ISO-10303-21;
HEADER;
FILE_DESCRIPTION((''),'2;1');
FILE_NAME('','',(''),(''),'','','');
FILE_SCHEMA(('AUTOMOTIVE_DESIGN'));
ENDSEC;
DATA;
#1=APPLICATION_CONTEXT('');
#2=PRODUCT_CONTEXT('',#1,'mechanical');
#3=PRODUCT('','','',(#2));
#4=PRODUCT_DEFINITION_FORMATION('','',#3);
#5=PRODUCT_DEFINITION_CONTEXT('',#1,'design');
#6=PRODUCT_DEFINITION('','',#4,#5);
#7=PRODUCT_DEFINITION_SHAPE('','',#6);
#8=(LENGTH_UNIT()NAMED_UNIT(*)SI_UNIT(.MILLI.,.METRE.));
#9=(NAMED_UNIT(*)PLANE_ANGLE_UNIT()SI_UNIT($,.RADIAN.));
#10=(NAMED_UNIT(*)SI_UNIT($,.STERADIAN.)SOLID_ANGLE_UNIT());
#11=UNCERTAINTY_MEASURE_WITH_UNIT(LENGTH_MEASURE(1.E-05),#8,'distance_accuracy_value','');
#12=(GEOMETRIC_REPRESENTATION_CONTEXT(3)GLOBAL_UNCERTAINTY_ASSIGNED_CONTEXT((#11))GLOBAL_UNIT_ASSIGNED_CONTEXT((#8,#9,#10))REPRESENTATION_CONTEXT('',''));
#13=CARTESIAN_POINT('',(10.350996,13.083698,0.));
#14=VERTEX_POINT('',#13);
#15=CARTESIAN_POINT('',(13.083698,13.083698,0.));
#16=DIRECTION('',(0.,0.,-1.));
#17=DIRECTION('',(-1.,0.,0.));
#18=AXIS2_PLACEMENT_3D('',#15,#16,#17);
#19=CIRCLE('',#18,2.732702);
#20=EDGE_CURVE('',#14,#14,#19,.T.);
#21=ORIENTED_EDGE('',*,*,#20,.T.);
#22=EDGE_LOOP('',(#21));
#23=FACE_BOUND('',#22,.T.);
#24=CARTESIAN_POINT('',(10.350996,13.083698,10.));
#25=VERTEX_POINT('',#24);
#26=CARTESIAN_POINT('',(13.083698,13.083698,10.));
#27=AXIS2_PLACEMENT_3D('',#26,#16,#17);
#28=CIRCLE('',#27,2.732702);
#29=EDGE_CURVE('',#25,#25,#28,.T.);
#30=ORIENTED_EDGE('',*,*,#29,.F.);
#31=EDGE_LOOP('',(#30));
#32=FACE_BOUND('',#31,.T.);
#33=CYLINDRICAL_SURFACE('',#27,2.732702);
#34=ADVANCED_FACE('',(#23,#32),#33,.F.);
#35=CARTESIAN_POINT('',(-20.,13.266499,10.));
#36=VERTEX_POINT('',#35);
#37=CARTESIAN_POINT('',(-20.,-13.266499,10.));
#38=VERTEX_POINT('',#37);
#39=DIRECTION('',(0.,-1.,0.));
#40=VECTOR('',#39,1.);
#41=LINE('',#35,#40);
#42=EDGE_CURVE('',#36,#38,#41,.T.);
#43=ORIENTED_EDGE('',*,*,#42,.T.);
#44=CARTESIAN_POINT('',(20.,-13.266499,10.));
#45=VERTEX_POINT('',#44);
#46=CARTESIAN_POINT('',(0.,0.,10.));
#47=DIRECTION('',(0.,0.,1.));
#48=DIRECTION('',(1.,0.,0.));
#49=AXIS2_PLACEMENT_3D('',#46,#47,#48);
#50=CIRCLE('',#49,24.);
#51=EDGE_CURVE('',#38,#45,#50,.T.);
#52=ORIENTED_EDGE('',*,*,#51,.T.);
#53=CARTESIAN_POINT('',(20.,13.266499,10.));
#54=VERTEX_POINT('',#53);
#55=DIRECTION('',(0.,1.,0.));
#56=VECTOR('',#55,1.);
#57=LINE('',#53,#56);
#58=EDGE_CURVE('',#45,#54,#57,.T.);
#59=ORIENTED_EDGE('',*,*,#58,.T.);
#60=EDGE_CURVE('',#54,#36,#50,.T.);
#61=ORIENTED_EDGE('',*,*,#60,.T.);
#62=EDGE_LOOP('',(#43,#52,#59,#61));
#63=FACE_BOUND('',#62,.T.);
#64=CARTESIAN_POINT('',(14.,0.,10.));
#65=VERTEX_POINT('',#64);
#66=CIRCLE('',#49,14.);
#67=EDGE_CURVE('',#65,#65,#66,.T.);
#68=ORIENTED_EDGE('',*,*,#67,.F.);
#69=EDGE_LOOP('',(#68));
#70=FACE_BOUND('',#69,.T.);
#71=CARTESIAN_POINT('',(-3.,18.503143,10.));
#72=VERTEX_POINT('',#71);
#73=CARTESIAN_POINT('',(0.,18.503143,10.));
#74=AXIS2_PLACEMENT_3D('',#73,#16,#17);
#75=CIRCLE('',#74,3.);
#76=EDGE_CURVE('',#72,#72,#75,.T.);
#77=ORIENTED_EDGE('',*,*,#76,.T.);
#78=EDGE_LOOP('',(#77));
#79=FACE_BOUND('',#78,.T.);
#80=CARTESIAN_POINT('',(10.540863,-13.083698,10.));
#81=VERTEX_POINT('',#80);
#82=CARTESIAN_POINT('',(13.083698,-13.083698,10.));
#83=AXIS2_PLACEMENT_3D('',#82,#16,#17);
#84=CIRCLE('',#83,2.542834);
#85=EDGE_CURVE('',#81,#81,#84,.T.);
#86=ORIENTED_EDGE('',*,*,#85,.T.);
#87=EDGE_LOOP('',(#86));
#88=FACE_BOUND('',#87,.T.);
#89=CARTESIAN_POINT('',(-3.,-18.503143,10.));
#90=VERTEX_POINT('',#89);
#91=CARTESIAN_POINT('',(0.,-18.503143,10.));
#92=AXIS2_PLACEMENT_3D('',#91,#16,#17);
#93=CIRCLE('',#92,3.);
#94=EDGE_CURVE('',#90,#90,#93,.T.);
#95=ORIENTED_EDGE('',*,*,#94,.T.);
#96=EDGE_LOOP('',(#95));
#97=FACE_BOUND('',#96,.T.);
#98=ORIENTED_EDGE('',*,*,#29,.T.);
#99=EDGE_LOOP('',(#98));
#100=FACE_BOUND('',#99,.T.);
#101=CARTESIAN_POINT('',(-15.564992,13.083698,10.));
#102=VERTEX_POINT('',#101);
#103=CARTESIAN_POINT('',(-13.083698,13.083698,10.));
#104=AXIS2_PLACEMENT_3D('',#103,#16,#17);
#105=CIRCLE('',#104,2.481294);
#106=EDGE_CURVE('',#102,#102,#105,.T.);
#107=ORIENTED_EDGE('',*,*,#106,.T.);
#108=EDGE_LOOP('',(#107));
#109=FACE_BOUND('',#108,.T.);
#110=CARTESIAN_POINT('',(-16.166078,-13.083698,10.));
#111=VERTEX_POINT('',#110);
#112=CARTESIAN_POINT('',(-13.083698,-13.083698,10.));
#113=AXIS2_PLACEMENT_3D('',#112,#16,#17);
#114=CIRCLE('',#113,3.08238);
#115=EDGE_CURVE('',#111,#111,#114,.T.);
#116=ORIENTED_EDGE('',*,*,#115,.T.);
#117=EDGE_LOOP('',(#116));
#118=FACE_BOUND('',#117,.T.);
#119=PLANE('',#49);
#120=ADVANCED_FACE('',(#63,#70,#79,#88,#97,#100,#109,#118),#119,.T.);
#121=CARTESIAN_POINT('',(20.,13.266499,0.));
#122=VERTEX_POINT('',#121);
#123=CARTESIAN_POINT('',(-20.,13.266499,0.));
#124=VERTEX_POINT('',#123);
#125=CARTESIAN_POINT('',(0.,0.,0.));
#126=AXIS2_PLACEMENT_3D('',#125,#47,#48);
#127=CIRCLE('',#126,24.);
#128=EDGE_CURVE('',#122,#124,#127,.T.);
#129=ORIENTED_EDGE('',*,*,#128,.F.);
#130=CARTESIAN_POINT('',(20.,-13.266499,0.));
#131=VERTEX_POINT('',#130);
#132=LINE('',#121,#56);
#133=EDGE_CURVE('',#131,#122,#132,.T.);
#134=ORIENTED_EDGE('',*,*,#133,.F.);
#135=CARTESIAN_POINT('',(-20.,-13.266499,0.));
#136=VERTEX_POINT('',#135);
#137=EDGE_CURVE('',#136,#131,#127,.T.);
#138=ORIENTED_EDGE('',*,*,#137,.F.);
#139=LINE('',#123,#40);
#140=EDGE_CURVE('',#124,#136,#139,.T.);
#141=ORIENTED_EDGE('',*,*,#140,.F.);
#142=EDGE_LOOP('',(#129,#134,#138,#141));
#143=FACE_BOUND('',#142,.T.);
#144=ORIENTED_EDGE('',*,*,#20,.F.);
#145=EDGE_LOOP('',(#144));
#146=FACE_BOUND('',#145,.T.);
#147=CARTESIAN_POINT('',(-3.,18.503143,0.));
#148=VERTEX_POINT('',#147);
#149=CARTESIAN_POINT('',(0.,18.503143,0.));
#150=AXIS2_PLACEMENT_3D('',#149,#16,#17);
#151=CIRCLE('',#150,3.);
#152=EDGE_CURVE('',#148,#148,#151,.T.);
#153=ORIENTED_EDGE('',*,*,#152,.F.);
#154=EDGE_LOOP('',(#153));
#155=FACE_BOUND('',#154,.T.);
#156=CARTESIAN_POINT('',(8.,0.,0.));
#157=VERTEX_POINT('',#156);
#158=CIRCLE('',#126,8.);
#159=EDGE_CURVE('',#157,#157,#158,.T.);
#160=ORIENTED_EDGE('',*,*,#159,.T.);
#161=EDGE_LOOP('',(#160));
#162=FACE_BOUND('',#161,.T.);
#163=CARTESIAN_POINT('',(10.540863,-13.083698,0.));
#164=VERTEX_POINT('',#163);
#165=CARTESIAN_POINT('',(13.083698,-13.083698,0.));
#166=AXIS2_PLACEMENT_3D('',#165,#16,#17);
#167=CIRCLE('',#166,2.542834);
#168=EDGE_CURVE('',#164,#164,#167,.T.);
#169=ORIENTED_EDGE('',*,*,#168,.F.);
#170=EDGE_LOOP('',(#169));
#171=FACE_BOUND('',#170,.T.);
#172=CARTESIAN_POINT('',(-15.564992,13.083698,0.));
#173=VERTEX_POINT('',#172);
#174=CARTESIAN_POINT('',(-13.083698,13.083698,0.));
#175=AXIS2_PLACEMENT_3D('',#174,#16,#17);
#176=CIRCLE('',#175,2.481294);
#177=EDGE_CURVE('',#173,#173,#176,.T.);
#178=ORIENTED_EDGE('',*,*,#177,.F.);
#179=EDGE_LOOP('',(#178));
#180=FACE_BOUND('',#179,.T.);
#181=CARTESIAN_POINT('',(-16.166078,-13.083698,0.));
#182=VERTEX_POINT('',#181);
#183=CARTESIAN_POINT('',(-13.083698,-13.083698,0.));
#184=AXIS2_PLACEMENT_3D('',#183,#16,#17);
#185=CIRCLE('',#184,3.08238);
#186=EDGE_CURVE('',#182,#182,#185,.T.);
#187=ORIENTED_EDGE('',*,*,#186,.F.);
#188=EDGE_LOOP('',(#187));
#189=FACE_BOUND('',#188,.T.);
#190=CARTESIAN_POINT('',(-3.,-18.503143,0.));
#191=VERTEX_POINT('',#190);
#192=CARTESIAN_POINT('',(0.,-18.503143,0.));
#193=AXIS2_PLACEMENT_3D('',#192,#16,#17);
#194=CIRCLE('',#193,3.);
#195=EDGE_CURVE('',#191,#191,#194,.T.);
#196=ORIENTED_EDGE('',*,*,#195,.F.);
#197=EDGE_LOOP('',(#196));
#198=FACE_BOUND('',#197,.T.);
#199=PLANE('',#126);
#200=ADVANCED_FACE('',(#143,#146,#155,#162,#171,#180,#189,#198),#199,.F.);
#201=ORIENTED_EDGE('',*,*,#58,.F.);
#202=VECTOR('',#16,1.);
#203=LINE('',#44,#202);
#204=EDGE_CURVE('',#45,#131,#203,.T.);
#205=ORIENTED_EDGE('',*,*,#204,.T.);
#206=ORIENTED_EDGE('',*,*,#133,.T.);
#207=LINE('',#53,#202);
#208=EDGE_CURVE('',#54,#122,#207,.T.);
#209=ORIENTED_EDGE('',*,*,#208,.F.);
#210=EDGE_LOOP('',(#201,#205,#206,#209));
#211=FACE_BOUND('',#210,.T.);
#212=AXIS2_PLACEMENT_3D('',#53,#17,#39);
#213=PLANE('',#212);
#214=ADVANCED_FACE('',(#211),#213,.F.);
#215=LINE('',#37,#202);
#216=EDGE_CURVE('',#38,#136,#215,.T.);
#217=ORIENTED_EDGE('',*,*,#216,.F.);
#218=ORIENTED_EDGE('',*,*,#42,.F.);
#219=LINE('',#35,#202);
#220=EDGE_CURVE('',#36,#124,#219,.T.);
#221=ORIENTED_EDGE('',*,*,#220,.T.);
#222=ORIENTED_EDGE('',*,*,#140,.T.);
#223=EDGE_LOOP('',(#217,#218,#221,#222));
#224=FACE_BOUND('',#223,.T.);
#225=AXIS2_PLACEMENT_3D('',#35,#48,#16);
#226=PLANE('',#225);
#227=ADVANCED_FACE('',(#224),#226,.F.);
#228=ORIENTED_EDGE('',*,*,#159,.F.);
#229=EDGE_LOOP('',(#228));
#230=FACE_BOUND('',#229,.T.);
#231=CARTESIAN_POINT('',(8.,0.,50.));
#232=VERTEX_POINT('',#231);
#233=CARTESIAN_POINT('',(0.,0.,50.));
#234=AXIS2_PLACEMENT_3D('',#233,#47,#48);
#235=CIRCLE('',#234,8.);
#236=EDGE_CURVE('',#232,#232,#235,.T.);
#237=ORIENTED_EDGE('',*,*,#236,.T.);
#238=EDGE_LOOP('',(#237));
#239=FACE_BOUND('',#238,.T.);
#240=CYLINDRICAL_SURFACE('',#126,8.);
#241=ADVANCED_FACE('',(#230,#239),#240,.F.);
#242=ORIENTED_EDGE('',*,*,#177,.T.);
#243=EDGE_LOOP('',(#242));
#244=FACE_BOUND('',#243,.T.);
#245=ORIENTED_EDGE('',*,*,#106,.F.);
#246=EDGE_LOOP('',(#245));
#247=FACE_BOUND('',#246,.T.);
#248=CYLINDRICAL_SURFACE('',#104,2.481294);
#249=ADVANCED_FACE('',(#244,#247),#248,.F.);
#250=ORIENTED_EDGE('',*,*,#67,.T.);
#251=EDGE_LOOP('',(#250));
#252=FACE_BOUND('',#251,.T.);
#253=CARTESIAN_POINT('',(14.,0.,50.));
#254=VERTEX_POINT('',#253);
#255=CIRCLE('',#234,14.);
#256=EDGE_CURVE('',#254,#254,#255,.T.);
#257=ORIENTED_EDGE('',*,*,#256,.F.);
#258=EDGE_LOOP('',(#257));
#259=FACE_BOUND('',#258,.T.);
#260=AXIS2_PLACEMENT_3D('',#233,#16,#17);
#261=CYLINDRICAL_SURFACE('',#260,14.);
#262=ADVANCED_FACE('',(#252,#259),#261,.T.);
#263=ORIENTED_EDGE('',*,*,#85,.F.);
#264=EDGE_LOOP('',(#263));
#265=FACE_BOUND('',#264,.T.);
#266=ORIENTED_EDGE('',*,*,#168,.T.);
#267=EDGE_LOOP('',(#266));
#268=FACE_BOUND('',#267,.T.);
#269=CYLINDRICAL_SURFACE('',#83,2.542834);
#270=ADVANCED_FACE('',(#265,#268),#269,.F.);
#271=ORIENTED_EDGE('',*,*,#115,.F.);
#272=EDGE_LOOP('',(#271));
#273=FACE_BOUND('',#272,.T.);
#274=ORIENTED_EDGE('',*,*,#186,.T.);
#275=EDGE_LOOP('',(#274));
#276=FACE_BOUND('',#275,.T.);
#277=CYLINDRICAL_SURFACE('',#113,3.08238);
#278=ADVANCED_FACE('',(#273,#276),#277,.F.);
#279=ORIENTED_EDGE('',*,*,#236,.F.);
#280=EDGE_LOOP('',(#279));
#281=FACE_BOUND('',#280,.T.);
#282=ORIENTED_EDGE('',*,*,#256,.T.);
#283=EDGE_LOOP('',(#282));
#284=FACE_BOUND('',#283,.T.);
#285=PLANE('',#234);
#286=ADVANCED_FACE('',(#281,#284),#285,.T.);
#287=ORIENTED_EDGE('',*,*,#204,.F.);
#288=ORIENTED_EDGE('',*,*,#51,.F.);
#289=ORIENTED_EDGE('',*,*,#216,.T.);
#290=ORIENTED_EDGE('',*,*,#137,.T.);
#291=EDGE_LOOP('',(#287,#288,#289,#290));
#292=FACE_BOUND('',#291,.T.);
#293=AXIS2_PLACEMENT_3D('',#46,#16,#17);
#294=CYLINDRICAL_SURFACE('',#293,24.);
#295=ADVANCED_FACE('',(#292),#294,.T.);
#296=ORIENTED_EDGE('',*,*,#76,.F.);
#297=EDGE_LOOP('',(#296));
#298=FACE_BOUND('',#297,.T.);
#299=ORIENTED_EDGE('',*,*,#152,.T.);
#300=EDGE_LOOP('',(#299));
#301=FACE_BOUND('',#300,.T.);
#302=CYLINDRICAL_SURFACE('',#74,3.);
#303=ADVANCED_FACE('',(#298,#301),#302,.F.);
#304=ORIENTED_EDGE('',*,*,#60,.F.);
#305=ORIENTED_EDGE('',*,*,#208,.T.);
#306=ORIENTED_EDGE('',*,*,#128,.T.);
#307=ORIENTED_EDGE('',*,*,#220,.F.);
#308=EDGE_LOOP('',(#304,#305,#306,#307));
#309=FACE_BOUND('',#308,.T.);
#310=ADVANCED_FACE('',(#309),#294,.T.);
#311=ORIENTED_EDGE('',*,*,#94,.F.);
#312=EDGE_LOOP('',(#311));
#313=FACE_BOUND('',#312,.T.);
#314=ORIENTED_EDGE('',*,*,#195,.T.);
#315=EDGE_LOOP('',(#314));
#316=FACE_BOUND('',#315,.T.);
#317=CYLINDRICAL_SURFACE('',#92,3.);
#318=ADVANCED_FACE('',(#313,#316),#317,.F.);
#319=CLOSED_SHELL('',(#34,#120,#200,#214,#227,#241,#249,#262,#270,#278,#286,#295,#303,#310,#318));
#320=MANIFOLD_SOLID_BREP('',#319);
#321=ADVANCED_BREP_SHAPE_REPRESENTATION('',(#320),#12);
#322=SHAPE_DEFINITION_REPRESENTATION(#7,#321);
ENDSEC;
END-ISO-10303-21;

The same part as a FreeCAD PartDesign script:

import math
import FreeCAD as App
import Part
import Sketcher

V = App.Vector

doc = App.newDocument("Part")
body = doc.addObject("PartDesign::Body", "Body")

# Sketch on XY plane
sketch1 = body.newObject("Sketcher::SketchObject", "Sketch")
sketch1.AttachmentSupport = (doc.getObject("XY_Plane"), [""])
sketch1.MapMode = "FlatFace"
sketch1.addGeometry(Part.Circle(V(0, 0, 0), V(0, 0, 1), 24), False)
sketch1.addConstraint([
    Sketcher.Constraint("Coincident", 0, 3, -1, 1),
    Sketcher.Constraint("Diameter", 0, 48.0),
])
pad1 = body.newObject("PartDesign::Pad", "Pad")
pad1.Profile = sketch1
pad1.Length = 10

# Sketch on XY plane
sketch2 = body.newObject("Sketcher::SketchObject", "Sketch001")
sketch2.AttachmentSupport = (doc.getObject("XY_Plane"), [""])
sketch2.MapMode = "FlatFace"
sketch2.AttachmentOffset = App.Placement(V(0, 0, 10), App.Rotation())
sketch2.addGeometry(Part.Circle(V(0, 0, 0), V(0, 0, 1), 14), False)
sketch2.addConstraint([
    Sketcher.Constraint("Coincident", 0, 3, -1, 1),
    Sketcher.Constraint("Diameter", 0, 28.0),
])
pad2 = body.newObject("PartDesign::Pad", "Pad001")
pad2.Profile = sketch2
pad2.Length = 40

# Sketch on XY plane
sketch3 = body.newObject("Sketcher::SketchObject", "Sketch002")
sketch3.AttachmentSupport = (doc.getObject("XY_Plane"), [""])
sketch3.MapMode = "FlatFace"
sketch3.AttachmentOffset = App.Placement(V(0, 0, 50), App.Rotation())
sketch3.addGeometry(Part.Circle(V(0, 0, 0), V(0, 0, 1), 8), False)
sketch3.addConstraint([
    Sketcher.Constraint("Coincident", 0, 3, -1, 1),
    Sketcher.Constraint("Diameter", 0, 16.0),
])
pocket1 = body.newObject("PartDesign::Pocket", "Pocket")
pocket1.Profile = sketch3
pocket1.Length = 50

# Sketch on XY plane
sketch4 = body.newObject("Sketcher::SketchObject", "Sketch003")
sketch4.AttachmentSupport = (doc.getObject("XY_Plane"), [""])
sketch4.MapMode = "FlatFace"
sketch4.addGeometry([
    Part.LineSegment(V(20, -13, 0), V(20, 13, 0)),
    Part.ArcOfCircle(Part.Circle(V(0, 0, 0), V(0, 0, 1), 24), math.radians(-34), math.radians(34)),
    Part.LineSegment(V(-20, 13, 0), V(-20, -13, 0)),
    Part.ArcOfCircle(Part.Circle(V(0, 0, 0), V(0, 0, 1), 24), math.radians(146), math.radians(214)),
], False)
sketch4.addConstraint([
    Sketcher.Constraint("Coincident", 0, 1, 1, 1),
    Sketcher.Constraint("Coincident", 1, 2, 0, 2),
    Sketcher.Constraint("Coincident", 2, 1, 3, 1),
    Sketcher.Constraint("Coincident", 3, 2, 2, 2),
    Sketcher.Constraint("Vertical", 0),
    Sketcher.Constraint("Vertical", 2),
    Sketcher.Constraint("Coincident", 1, 3, -1, 1),
    Sketcher.Constraint("Coincident", 3, 3, -1, 1),
    Sketcher.Constraint("Equal", 1, 3),
    Sketcher.Constraint("Horizontal", 1, 2, 2, 1),
    Sketcher.Constraint("Radius", 1, 24.0),
    Sketcher.Constraint("DistanceX", -1, 1, 0, 1, 20.0),
])
pocket2 = body.newObject("PartDesign::Pocket", "Pocket001")
pocket2.Profile = sketch4
pocket2.Length = 10
pocket2.Reversed = True

# Sketch on XY plane
sketch5 = body.newObject("Sketcher::SketchObject", "Sketch004")
sketch5.AttachmentSupport = (doc.getObject("XY_Plane"), [""])
sketch5.MapMode = "FlatFace"
sketch5.addGeometry([
    Part.Circle(V(0, 18.5, 0), V(0, 0, 1), 3),  # 0
    Part.Circle(V(13.1, -13.1, 0), V(0, 0, 1), 2.5),  # 1
    Part.Circle(V(-13.1, -13.1, 0), V(0, 0, 1), 3.1),  # 2
    Part.Circle(V(-13.1, 13.1, 0), V(0, 0, 1), 2.5),  # 3
    Part.Circle(V(13.1, 13.1, 0), V(0, 0, 1), 2.7),  # 4
    Part.Circle(V(0, -18.5, 0), V(0, 0, 1), 3),  # 5
], False)
sketch5.addConstraint([
    Sketcher.Constraint("Equal", 0, 5),
    Sketcher.Constraint("Symmetric", 1, 3, 3, 3, -1, 1),
    Sketcher.Constraint("Symmetric", 2, 3, 4, 3, -1, 1),
    Sketcher.Constraint("Symmetric", 0, 3, 5, 3, -1, 1),
    Sketcher.Constraint("Symmetric", 1, 3, 2, 3, -2),
    Sketcher.Constraint("PointOnObject", 0, 3, -2),
    Sketcher.Constraint("Diameter", 0, 6.0),
    Sketcher.Constraint("Diameter", 1, 5.085669),
    Sketcher.Constraint("Diameter", 2, 6.164759),
    Sketcher.Constraint("Diameter", 3, 4.962589),
    Sketcher.Constraint("Diameter", 4, 5.465403),
    Sketcher.Constraint("DistanceY", 1, 3, 0, 3, 31.586841),
    Sketcher.Constraint("DistanceY", -1, 1, 0, 3, 18.503143),
    Sketcher.Constraint("DistanceX", -1, 1, 1, 3, 13.083698),
])
pocket3 = body.newObject("PartDesign::Pocket", "Pocket002")
pocket3.Profile = sketch5
pocket3.Length = 10
pocket3.Reversed = True

doc.recompute()
